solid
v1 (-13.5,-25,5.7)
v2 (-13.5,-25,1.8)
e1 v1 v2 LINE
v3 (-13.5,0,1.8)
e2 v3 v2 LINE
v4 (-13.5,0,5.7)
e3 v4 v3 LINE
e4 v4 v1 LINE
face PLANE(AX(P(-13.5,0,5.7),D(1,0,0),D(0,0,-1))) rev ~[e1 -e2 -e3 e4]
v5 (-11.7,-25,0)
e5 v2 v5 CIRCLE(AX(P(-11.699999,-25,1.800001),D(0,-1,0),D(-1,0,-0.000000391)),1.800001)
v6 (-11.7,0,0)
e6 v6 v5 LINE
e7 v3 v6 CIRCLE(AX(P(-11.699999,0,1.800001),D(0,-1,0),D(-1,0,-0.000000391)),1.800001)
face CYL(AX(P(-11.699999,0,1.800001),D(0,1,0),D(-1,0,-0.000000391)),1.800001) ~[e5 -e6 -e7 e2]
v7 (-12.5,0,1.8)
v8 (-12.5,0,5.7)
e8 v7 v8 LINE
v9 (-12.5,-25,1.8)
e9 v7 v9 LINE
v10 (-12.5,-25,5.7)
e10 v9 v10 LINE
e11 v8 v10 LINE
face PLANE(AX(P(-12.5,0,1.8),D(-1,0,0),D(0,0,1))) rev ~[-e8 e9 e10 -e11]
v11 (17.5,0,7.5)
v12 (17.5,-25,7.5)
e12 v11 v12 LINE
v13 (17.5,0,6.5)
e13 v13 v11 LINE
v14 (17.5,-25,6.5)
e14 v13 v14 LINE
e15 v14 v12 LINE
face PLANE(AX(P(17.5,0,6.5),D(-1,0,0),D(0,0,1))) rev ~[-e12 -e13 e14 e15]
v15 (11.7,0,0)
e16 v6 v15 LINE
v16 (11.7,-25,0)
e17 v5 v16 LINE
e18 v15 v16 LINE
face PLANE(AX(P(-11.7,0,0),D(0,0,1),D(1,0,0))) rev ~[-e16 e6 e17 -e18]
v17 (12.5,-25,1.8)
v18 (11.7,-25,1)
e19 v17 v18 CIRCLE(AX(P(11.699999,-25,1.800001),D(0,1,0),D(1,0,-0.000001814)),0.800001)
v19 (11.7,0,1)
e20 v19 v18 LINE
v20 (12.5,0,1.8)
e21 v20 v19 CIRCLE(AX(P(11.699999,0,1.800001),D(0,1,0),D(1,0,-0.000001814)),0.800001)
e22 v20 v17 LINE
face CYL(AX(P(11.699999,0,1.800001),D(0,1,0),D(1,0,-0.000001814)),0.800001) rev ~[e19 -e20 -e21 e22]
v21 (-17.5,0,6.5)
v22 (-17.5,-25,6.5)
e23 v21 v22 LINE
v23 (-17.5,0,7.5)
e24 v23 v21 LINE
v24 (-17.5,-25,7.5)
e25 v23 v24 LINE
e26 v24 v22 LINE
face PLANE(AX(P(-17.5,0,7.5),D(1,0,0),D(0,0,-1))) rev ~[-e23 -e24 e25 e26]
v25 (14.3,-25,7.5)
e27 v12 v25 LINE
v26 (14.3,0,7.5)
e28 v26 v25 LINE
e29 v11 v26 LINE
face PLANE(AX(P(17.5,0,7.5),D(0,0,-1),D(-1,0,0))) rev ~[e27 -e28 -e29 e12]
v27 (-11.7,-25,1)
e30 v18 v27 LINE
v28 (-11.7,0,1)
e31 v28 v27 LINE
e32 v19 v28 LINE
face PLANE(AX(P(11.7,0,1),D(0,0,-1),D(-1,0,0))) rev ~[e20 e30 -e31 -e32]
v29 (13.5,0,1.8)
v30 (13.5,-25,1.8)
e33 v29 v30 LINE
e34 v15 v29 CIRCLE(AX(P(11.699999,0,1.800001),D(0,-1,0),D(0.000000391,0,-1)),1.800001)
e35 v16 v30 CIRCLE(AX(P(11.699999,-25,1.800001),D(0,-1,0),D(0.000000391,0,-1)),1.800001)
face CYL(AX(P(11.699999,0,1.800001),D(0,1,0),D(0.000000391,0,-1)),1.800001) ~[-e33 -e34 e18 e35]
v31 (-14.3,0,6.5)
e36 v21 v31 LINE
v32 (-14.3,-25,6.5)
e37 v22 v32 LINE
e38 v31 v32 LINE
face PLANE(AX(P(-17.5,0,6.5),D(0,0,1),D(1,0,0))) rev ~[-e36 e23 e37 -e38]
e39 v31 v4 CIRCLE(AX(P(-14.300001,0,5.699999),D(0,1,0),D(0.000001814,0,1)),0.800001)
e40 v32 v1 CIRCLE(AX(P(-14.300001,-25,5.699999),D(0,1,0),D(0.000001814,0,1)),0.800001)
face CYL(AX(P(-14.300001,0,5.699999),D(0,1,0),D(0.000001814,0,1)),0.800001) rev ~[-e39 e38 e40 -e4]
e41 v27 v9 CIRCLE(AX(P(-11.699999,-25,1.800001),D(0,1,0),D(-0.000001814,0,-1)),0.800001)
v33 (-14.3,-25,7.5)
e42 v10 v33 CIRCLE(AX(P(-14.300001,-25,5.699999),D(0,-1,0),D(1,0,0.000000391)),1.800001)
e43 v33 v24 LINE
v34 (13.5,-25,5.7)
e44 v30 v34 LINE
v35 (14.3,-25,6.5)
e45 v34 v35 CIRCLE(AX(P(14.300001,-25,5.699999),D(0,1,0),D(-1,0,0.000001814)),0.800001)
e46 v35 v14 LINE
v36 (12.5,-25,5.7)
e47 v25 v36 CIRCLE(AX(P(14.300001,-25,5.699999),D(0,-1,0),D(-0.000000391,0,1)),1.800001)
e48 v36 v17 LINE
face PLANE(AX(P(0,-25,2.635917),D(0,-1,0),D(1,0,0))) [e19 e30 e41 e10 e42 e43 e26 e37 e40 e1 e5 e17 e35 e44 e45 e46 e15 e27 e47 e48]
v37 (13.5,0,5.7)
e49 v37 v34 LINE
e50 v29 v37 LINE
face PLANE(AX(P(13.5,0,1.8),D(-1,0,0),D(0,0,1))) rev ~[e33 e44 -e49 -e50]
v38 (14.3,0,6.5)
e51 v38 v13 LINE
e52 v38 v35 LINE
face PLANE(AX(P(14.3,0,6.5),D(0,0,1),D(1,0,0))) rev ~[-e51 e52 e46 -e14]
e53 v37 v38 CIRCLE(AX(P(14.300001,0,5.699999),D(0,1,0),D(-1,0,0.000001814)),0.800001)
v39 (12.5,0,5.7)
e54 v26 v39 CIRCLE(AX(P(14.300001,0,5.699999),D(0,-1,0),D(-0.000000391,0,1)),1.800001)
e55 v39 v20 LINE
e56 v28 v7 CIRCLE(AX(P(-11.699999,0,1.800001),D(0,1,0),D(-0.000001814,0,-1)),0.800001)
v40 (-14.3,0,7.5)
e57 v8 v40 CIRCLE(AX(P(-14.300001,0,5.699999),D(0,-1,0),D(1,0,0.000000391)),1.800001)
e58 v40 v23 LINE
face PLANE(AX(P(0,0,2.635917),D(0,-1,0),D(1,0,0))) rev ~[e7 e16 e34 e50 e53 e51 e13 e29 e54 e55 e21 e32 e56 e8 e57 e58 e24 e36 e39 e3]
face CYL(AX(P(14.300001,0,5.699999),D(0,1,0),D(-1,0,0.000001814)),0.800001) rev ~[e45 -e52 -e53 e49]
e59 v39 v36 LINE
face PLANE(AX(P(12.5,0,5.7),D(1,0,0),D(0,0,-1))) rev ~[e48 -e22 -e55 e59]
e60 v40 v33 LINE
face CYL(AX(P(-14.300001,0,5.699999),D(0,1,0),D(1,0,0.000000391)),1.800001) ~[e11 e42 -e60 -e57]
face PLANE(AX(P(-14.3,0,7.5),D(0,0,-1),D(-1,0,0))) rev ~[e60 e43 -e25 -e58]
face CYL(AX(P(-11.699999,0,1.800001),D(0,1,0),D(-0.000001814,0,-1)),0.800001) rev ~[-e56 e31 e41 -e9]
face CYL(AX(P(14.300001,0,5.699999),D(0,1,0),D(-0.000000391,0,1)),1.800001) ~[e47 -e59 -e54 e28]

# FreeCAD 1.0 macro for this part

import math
import FreeCAD as App
import Part
import Sketcher

doc = App.newDocument("Part")
params = doc.addObject("Spreadsheet::Sheet", "Params")
for row, (alias, value) in enumerate([
    ("sketch1_radius", "1.800001 mm"),
    ("sketch1_radius2", "0.800001 mm"),
    ("sketch1_width", "23.4 mm"),
    ("sketch1_width2", "3.2 mm"),
    ("sketch1_height", "3.9 mm"),
    ("pad1_length", "25 mm"),
], start=1):
    params.set(f"A{row}", alias)
    params.set(f"B{row}", "=" + value)
    params.setAlias(f"B{row}", alias)

body = doc.addObject("PartDesign::Body", "Body")

sketch1 = body.newObject("Sketcher::SketchObject", "Sketch")
sketch1.AttachmentSupport = (doc.getObject("XZ_Plane"), [""])
sketch1.MapMode = "FlatFace"
sketch1.addGeometry([
    Part.LineSegment(App.Vector(-11.7, 0, 0), App.Vector(11.7, 0, 0)),
    Part.ArcOfCircle(Part.Circle(App.Vector(11.699999, 1.800001, 0), App.Vector(0, 0, 1), 1.800001), math.radians(-89.999978), math.radians(-0.000022)),
    Part.LineSegment(App.Vector(13.5, 1.8, 0), App.Vector(13.5, 5.7, 0)),
    Part.ArcOfCircle(Part.Circle(App.Vector(14.300001, 5.699999, 0), App.Vector(0, 0, 1), 0.800001), math.radians(90.000104), math.radians(179.999896)),
    Part.LineSegment(App.Vector(14.3, 6.5, 0), App.Vector(17.5, 6.5, 0)),
    Part.LineSegment(App.Vector(17.5, 6.5, 0), App.Vector(17.5, 7.5, 0)),
    Part.LineSegment(App.Vector(17.5, 7.5, 0), App.Vector(14.3, 7.5, 0)),
    Part.ArcOfCircle(Part.Circle(App.Vector(14.300001, 5.699999, 0), App.Vector(0, 0, 1), 1.800001), math.radians(90.000022), math.radians(179.999978)),
    Part.LineSegment(App.Vector(12.5, 5.7, 0), App.Vector(12.5, 1.8, 0)),
    Part.ArcOfCircle(Part.Circle(App.Vector(11.699999, 1.800001, 0), App.Vector(0, 0, 1), 0.800001), math.radians(-89.999896), math.radians(-0.000104)),
    Part.LineSegment(App.Vector(11.7, 1, 0), App.Vector(-11.7, 1, 0)),
    Part.ArcOfCircle(Part.Circle(App.Vector(-11.699999, 1.800001, 0), App.Vector(0, 0, 1), 0.800001), math.radians(-179.999896), math.radians(-90.000104)),
    Part.LineSegment(App.Vector(-12.5, 1.8, 0), App.Vector(-12.5, 5.7, 0)),
    Part.ArcOfCircle(Part.Circle(App.Vector(-14.300001, 5.699999, 0), App.Vector(0, 0, 1), 1.800001), math.radians(0.000022), math.radians(89.999978)),
    Part.LineSegment(App.Vector(-14.3, 7.5, 0), App.Vector(-17.5, 7.5, 0)),
    Part.LineSegment(App.Vector(-17.5, 7.5, 0), App.Vector(-17.5, 6.5, 0)),
    Part.LineSegment(App.Vector(-17.5, 6.5, 0), App.Vector(-14.3, 6.5, 0)),
    Part.ArcOfCircle(Part.Circle(App.Vector(-14.300001, 5.699999, 0), App.Vector(0, 0, 1), 0.800001), math.radians(0.000104), math.radians(89.999896)),
    Part.LineSegment(App.Vector(-13.5, 5.7, 0), App.Vector(-13.5, 1.8, 0)),
    Part.ArcOfCircle(Part.Circle(App.Vector(-11.699999, 1.800001, 0), App.Vector(0, 0, 1), 1.800001), math.radians(-179.999978), math.radians(-90.000022)),
], False)
sketch1.addConstraint([
    Sketcher.Constraint("Tangent", 0, 2, 1, 1),
    Sketcher.Constraint("Tangent", 1, 2, 2, 1),
    Sketcher.Constraint("Tangent", 2, 2, 3, 2),
    Sketcher.Constraint("Tangent", 3, 1, 4, 1),
    Sketcher.Constraint("Coincident", 4, 2, 5, 1),
    Sketcher.Constraint("Coincident", 5, 2, 6, 1),
    Sketcher.Constraint("Tangent", 6, 2, 7, 1),
    Sketcher.Constraint("Tangent", 7, 2, 8, 1),
    Sketcher.Constraint("Tangent", 8, 2, 9, 2),
    Sketcher.Constraint("Tangent", 9, 1, 10, 1),
    Sketcher.Constraint("Tangent", 10, 2, 11, 2),
    Sketcher.Constraint("Tangent", 11, 1, 12, 1),
    Sketcher.Constraint("Tangent", 12, 2, 13, 1),
    Sketcher.Constraint("Tangent", 13, 2, 14, 1),
    Sketcher.Constraint("Coincident", 14, 2, 15, 1),
    Sketcher.Constraint("Coincident", 15, 2, 16, 1),
    Sketcher.Constraint("Tangent", 16, 2, 17, 2),
    Sketcher.Constraint("Tangent", 17, 1, 18, 1),
    Sketcher.Constraint("Tangent", 18, 2, 19, 1),
    Sketcher.Constraint("Tangent", 19, 2, 0, 1),
    Sketcher.Constraint("Horizontal", 0),
    Sketcher.Constraint("Vertical", 2),
    Sketcher.Constraint("Horizontal", 4),
    Sketcher.Constraint("Vertical", 5),
    Sketcher.Constraint("Horizontal", 6),
    Sketcher.Constraint("Vertical", 8),
    Sketcher.Constraint("Horizontal", 10),
    Sketcher.Constraint("Vertical", 12),
    Sketcher.Constraint("Horizontal", 14),
    Sketcher.Constraint("Vertical", 15),
    Sketcher.Constraint("Horizontal", 16),
    Sketcher.Constraint("Vertical", 18),
    Sketcher.Constraint("Coincident", 7, 3, 3, 3),
    Sketcher.Constraint("Coincident", 9, 3, 1, 3),
    Sketcher.Constraint("Coincident", 17, 3, 13, 3),
    Sketcher.Constraint("Coincident", 19, 3, 11, 3),
    Sketcher.Constraint("Equal", 1, 7),
    Sketcher.Constraint("Equal", 9, 11),
    Sketcher.Constraint("Equal", 7, 13),
    Sketcher.Constraint("Symmetric", 0, 2, 19, 2, -1, 1),
    Sketcher.Constraint("Symmetric", 5, 2, 14, 2, -2),
    Sketcher.Constraint("Radius", 1, 1.800001),
    Sketcher.Constraint("Radius", 3, 0.800001),
    Sketcher.Constraint("DistanceX", 0, 1, 0, 2, 23.4),
    Sketcher.Constraint("DistanceX", 4, 1, 4, 2, 3.2),
    Sketcher.Constraint("DistanceY", 2, 1, 2, 2, 3.9),
])
sketch1.setExpression("Constraints[41]", "Params.sketch1_radius")
sketch1.setExpression("Constraints[42]", "Params.sketch1_radius2")
sketch1.setExpression("Constraints[43]", "Params.sketch1_width")
sketch1.setExpression("Constraints[44]", "Params.sketch1_width2")
sketch1.setExpression("Constraints[45]", "Params.sketch1_height")
pad1 = body.newObject("PartDesign::Pad", "Pad")
pad1.Profile = sketch1
pad1.setExpression("Length", "Params.pad1_length")

doc.recompute()
